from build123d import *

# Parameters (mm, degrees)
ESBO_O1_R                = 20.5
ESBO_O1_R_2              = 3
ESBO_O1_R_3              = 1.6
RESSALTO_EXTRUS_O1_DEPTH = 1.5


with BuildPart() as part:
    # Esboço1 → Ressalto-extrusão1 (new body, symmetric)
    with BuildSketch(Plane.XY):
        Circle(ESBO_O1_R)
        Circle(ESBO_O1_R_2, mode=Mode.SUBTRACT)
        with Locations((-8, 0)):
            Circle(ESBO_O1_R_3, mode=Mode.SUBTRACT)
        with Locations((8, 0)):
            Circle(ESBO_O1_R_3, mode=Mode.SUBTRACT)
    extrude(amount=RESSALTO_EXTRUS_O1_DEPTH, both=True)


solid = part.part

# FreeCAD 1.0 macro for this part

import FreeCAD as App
import Part
import Sketcher
from FreeCAD import Vector
Q = App.Units.Quantity

doc = App.newDocument("Part")
params = doc.addObject("Spreadsheet::Sheet", "Params")
for row, (alias, value) in enumerate([
    ("sketch1_diameter", "41 mm"),
    ("sketch1_diameter2", "6 mm"),
    ("sketch1_diameter3", "3.2 mm"),
    ("pad1_length", "3 mm"),
], start=1):
    params.set(f"A{row}", alias)
    params.set(f"B{row}", "=" + value)
    params.setAlias(f"B{row}", alias)

body = doc.addObject("PartDesign::Body", "Body")

sketch1 = body.newObject("Sketcher::SketchObject", "Sketch")
sketch1.AttachmentSupport = (doc.getObject("XY_Plane"), [""])
sketch1.MapMode = "FlatFace"
sketch1.addGeometry([
    Part.Circle(Vector(0, 0, 0), Vector(0, 0, 1), 20.5),
    Part.Circle(Vector(-8, 0, 0), Vector(0, 0, 1), 1.6),
    Part.Circle(Vector(0, 0, 0), Vector(0, 0, 1), 3),
    Part.Circle(Vector(8, 0, 0), Vector(0, 0, 1), 1.6),
], False)
sketch1.addConstraint([
    Sketcher.Constraint("Coincident", 0, 3, -1, 1),
    Sketcher.Constraint("Coincident", 2, 3, -1, 1),
    Sketcher.Constraint("Equal", 1, 3),
    Sketcher.Constraint("Symmetric", 1, 3, 3, 3, -1, 1),
    Sketcher.Constraint("PointOnObject", 1, 3, -1),
    Sketcher.Constraint("Diameter", 0, Q("41 mm")),
    Sketcher.Constraint("Diameter", 2, Q("6 mm")),
    Sketcher.Constraint("Diameter", 1, Q("3.2 mm")),
    Sketcher.Constraint("DistanceX", 1, 3, -1, 1, Q("8 mm")),
])
sketch1.setExpression("Constraints[5]", "Params.sketch1_diameter")
sketch1.setExpression("Constraints[6]", "Params.sketch1_diameter2")
sketch1.setExpression("Constraints[7]", "Params.sketch1_diameter3")
pad1 = body.newObject("PartDesign::Pad", "Pad")
pad1.Profile = sketch1
pad1.setExpression("Length", "Params.pad1_length")
pad1.Midplane = True

doc.recompute()
